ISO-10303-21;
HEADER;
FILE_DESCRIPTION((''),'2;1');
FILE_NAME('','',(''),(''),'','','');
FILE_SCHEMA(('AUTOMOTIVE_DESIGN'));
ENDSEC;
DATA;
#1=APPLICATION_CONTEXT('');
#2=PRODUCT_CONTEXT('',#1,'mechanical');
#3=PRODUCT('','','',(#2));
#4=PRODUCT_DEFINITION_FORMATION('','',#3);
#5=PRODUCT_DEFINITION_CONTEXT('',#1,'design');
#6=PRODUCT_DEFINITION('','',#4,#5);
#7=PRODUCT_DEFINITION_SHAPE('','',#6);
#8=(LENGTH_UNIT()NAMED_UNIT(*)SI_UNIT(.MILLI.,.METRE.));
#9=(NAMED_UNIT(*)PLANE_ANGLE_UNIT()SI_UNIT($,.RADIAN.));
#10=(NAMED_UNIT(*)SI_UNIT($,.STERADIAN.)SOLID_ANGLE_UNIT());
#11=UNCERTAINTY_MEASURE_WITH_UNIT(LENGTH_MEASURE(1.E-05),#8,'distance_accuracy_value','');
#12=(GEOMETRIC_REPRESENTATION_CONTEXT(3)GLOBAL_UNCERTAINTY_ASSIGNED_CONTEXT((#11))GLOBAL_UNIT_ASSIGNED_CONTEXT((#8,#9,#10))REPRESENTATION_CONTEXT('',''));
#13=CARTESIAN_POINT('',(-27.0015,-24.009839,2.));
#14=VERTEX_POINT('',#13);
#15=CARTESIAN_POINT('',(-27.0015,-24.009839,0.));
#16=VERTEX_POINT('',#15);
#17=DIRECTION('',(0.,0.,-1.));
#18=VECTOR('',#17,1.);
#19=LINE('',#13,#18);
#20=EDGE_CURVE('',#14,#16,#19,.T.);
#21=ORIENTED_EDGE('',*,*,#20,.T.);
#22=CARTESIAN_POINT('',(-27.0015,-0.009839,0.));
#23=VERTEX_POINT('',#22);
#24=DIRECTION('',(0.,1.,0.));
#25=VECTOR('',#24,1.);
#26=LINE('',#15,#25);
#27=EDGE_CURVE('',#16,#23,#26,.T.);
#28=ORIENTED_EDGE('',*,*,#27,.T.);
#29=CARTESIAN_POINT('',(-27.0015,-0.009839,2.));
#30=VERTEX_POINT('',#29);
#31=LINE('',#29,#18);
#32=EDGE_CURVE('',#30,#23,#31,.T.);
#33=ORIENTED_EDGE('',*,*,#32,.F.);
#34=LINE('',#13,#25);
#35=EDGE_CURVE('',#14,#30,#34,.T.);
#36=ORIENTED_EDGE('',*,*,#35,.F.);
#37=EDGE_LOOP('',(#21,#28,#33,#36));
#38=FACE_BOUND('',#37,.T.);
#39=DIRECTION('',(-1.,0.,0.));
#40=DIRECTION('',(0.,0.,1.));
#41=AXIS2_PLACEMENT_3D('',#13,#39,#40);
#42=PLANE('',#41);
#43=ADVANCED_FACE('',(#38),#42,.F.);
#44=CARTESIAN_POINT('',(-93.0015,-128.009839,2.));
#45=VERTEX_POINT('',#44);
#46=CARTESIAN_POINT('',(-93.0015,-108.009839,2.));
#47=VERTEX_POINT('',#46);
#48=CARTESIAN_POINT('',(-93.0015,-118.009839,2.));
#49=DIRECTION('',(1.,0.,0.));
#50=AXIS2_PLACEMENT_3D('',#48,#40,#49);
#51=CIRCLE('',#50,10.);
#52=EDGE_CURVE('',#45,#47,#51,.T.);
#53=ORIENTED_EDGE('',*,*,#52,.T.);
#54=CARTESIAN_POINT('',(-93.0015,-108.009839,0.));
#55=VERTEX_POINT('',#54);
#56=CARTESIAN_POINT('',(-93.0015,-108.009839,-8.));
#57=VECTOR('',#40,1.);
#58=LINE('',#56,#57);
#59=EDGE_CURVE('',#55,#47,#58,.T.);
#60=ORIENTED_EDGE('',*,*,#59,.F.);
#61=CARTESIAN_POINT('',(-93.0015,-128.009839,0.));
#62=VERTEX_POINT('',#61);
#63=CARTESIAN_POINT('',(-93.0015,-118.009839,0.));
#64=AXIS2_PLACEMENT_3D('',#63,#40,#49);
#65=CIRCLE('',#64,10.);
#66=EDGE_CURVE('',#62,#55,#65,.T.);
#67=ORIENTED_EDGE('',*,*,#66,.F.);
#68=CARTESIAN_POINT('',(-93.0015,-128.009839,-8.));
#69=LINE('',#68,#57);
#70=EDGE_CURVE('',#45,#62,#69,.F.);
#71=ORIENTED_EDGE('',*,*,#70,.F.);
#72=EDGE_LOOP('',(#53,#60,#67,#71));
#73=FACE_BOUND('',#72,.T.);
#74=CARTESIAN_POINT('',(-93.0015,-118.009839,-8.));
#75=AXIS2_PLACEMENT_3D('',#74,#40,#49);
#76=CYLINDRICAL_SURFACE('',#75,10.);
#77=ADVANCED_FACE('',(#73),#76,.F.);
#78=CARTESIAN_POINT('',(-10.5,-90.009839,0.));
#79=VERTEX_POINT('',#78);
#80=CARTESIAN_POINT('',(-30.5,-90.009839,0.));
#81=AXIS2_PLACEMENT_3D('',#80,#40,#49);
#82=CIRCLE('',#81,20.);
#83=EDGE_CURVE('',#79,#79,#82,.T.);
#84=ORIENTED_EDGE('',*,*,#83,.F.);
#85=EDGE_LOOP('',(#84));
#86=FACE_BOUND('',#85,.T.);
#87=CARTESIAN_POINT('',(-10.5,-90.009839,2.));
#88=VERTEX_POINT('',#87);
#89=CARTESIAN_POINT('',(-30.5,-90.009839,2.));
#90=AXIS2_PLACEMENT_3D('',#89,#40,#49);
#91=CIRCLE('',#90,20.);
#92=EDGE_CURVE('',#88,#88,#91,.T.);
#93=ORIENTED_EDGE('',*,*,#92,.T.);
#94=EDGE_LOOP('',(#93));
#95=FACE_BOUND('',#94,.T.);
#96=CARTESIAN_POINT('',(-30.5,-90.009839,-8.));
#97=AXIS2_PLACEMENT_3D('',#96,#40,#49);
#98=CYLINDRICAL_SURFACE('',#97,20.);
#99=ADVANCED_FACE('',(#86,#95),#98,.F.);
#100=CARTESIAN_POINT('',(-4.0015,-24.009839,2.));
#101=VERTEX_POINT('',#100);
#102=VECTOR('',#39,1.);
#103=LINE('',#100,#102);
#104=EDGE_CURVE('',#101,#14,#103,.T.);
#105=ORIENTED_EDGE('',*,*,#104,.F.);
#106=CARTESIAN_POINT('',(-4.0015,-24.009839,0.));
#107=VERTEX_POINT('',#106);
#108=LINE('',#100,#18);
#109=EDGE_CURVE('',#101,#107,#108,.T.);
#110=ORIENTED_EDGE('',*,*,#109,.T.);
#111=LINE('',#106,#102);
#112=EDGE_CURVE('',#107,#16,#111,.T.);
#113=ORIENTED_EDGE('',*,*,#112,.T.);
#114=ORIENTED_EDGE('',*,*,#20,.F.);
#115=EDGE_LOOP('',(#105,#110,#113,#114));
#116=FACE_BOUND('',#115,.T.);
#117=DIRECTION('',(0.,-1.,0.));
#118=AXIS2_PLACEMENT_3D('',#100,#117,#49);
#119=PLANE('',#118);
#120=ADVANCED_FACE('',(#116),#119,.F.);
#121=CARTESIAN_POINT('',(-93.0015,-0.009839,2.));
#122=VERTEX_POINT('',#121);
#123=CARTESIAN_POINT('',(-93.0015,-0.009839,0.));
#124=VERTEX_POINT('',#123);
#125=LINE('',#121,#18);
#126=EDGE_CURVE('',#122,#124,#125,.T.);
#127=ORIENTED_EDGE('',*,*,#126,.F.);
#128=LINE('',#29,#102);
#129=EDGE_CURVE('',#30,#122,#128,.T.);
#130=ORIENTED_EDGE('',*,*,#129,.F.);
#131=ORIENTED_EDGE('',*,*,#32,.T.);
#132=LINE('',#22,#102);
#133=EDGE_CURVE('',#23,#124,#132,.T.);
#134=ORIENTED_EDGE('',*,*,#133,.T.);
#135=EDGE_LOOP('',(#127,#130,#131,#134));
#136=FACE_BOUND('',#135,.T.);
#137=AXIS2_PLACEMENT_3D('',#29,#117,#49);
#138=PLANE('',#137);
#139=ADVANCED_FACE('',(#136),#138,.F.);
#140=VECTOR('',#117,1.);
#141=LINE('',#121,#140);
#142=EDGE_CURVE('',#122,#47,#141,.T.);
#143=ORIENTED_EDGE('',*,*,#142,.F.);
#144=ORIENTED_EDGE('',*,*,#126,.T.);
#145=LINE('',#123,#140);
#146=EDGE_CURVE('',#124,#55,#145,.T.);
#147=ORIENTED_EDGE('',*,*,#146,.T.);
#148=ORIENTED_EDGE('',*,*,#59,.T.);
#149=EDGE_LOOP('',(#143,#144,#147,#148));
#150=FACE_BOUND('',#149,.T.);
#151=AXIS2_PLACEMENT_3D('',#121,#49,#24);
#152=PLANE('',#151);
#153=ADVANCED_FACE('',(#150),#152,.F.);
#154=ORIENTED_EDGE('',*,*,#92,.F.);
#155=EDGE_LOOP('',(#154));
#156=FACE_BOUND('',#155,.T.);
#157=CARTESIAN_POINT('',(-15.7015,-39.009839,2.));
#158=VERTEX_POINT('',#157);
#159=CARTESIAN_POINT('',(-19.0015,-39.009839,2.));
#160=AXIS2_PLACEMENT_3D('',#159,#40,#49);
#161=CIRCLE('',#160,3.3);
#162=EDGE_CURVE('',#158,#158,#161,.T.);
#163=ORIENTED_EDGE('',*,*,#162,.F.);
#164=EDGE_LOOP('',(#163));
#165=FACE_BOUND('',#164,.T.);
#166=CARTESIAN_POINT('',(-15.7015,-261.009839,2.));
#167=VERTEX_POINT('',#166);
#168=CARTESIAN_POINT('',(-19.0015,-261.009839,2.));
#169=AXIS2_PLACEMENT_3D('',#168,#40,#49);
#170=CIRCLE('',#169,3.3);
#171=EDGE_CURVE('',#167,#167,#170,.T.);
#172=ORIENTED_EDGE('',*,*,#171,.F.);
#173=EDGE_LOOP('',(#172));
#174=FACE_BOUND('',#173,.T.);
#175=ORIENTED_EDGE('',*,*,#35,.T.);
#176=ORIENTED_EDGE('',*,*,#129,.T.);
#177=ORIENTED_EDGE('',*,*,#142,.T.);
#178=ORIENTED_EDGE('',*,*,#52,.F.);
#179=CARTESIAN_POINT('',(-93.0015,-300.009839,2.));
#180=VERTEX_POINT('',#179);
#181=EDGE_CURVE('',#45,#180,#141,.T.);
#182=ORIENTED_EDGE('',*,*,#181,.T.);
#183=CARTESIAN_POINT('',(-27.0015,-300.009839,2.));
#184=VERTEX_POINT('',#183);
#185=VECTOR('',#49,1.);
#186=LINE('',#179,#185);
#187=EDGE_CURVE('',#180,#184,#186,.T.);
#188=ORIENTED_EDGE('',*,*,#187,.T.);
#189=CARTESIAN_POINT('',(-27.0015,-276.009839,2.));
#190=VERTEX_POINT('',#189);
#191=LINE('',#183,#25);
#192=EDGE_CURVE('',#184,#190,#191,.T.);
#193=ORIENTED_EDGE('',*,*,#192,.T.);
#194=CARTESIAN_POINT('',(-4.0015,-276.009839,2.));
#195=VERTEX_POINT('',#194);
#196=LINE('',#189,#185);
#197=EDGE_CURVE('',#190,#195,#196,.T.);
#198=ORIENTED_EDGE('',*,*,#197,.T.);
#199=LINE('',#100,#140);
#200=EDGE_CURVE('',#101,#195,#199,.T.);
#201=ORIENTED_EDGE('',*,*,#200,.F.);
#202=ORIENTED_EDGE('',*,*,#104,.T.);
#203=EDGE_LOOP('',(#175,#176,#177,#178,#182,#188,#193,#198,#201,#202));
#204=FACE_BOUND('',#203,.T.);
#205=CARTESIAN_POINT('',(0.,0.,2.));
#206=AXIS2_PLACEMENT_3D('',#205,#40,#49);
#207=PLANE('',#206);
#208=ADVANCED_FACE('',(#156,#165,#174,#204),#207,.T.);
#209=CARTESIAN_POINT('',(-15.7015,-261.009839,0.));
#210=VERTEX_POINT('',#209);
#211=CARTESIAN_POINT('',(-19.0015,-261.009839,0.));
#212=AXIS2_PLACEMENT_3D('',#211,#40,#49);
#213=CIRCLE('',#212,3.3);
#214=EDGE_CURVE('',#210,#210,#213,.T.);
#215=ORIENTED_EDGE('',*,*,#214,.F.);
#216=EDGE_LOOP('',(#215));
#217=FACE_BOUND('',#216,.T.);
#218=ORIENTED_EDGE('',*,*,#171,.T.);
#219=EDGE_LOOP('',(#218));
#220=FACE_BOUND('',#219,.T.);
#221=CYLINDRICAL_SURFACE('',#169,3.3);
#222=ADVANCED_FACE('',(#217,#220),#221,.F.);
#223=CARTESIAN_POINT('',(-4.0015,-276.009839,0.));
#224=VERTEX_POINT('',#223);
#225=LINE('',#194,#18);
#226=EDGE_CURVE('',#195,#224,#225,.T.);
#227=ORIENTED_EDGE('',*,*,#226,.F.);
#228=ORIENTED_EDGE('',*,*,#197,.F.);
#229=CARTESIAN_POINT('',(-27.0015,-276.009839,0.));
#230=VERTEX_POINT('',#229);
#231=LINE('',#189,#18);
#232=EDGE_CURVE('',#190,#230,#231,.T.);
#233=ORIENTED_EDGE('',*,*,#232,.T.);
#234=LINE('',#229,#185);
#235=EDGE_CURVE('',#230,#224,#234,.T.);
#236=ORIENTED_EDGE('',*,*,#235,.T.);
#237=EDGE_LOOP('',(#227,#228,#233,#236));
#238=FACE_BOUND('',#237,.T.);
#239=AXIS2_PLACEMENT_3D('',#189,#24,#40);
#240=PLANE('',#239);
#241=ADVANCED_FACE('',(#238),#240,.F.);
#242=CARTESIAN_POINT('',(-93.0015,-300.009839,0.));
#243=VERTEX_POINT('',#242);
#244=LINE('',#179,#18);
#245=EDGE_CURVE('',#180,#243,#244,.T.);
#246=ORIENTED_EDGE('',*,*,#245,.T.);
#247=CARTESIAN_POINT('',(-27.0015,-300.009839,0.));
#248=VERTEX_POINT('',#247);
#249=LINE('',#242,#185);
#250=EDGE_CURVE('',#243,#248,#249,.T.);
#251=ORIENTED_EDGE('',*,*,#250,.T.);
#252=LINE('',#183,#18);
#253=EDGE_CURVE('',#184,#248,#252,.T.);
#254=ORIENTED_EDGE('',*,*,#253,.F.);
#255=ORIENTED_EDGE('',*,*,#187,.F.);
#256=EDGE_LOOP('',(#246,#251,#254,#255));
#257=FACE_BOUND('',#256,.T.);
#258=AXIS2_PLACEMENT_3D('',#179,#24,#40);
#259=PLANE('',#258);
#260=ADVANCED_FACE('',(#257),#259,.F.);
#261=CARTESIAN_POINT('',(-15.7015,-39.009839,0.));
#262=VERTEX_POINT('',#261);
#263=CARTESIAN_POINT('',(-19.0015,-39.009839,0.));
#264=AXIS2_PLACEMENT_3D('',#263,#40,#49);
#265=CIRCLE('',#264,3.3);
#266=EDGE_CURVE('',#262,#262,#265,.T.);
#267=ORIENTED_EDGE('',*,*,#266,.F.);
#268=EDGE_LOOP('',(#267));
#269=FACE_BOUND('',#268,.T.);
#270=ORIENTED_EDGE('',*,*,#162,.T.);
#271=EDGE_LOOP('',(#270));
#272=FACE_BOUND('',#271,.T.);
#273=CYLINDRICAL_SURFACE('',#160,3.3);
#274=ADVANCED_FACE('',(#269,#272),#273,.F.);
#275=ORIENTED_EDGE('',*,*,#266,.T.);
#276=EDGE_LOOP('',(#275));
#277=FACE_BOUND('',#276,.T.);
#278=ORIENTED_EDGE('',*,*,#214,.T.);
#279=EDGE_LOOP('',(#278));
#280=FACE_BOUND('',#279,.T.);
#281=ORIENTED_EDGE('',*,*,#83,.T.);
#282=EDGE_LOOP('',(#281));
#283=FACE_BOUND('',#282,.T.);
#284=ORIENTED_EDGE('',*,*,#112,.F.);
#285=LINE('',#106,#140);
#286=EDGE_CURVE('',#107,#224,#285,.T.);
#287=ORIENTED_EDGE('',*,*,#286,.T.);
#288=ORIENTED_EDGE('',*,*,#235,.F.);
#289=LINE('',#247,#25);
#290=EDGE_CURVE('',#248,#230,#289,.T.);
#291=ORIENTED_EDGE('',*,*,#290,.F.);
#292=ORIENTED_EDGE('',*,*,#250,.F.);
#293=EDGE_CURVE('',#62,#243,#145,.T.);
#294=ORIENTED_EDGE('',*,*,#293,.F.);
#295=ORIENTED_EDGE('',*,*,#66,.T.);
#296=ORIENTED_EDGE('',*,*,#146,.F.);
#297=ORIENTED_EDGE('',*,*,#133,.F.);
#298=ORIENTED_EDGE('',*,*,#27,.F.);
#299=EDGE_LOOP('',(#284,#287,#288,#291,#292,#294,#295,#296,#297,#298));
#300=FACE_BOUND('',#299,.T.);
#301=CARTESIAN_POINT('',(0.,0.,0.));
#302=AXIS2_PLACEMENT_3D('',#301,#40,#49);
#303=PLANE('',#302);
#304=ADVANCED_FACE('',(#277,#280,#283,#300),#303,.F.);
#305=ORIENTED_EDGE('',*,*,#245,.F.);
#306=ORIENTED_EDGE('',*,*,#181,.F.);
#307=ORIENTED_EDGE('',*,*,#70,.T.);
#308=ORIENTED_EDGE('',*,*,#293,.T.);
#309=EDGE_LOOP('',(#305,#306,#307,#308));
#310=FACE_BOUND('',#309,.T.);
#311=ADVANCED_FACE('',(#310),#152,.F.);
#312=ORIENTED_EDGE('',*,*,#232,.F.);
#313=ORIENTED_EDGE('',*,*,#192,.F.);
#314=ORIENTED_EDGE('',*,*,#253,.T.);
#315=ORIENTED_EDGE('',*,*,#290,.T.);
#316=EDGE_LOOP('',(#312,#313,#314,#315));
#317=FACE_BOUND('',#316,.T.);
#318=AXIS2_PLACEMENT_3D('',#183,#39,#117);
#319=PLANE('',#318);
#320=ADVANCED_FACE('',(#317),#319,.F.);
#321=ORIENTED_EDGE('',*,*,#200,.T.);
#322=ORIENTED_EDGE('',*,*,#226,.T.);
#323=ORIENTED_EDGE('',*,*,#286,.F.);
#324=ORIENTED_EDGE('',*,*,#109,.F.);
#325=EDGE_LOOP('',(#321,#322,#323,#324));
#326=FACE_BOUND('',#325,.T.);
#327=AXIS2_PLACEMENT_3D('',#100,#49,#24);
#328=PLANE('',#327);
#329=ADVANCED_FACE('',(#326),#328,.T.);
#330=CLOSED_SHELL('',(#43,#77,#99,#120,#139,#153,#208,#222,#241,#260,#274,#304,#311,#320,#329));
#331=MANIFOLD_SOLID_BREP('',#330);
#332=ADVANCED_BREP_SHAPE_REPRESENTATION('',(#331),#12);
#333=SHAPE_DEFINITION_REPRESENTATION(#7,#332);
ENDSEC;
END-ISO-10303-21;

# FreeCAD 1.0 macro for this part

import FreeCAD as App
import Part
import Sketcher
from FreeCAD import Vector

doc = App.newDocument("Part")
params = doc.addObject("Spreadsheet::Sheet", "Params")
for row, (alias, value) in enumerate([
    ("sketch1_width", "23 mm"),
    ("sketch1_width2", "66 mm"),
    ("sketch1_height", "24 mm"),
    ("sketch1_height2", "300 mm"),
    ("pad1_length", "2 mm"),
    ("sketch2_diameter", "40 mm"),
    ("sketch2_diameter2", "20 mm"),
    ("pocket1_length", "10 mm"),
    ("sketch3_diameter", "6.6 mm"),
    ("hole_diameter", "6.6 mm"),
], start=1):
    params.set(f"A{row}", alias)
    params.set(f"B{row}", "=" + value)
    params.setAlias(f"B{row}", alias)

body = doc.addObject("PartDesign::Body", "Body")

# Sketch on XY plane
sketch1 = body.newObject("Sketcher::SketchObject", "Sketch")
sketch1.AttachmentSupport = (doc.getObject("XY_Plane"), [""])
sketch1.MapMode = "FlatFace"
sketch1.addGeometry(Part.LineSegment(Vector(-4, -24, 0), Vector(-27, -24, 0)), False)
sketch1.addGeometry(Part.LineSegment(Vector(-27, -24, 0), Vector(-27, 0, 0)), False)
sketch1.addGeometry(Part.LineSegment(Vector(-27, 0, 0), Vector(-93, 0, 0)), False)
sketch1.addGeometry(Part.LineSegment(Vector(-93, 0, 0), Vector(-93, -300, 0)), False)
sketch1.addGeometry(Part.LineSegment(Vector(-93, -300, 0), Vector(-27, -300, 0)), False)
sketch1.addGeometry(Part.LineSegment(Vector(-27, -300, 0), Vector(-27, -276, 0)), False)
sketch1.addGeometry(Part.LineSegment(Vector(-27, -276, 0), Vector(-4, -276, 0)), False)
sketch1.addGeometry(Part.LineSegment(Vector(-4, -276, 0), Vector(-4, -24, 0)), False)
sketch1.addConstraint(Sketcher.Constraint("Coincident", 0, 2, 1, 1))
sketch1.addConstraint(Sketcher.Constraint("Coincident", 1, 2, 2, 1))
sketch1.addConstraint(Sketcher.Constraint("Coincident", 2, 2, 3, 1))
sketch1.addConstraint(Sketcher.Constraint("Coincident", 3, 2, 4, 1))
sketch1.addConstraint(Sketcher.Constraint("Coincident", 4, 2, 5, 1))
sketch1.addConstraint(Sketcher.Constraint("Coincident", 5, 2, 6, 1))
sketch1.addConstraint(Sketcher.Constraint("Coincident", 6, 2, 7, 1))
sketch1.addConstraint(Sketcher.Constraint("Coincident", 7, 2, 0, 1))
sketch1.addConstraint(Sketcher.Constraint("Horizontal", 0))
sketch1.addConstraint(Sketcher.Constraint("Vertical", 1))
sketch1.addConstraint(Sketcher.Constraint("Horizontal", 2))
sketch1.addConstraint(Sketcher.Constraint("Vertical", 3))
sketch1.addConstraint(Sketcher.Constraint("Horizontal", 4))
sketch1.addConstraint(Sketcher.Constraint("Vertical", 5))
sketch1.addConstraint(Sketcher.Constraint("Horizontal", 6))
sketch1.addConstraint(Sketcher.Constraint("Vertical", 7))
sketch1.addConstraint(Sketcher.Constraint("Vertical", 1, 2, 4, 2))
sketch1.addConstraint(Sketcher.Constraint("Equal", 1, 5))
sketch1.addConstraint(Sketcher.Constraint("DistanceX", 0, 2, 0, 1, 23.0))
sketch1.addConstraint(Sketcher.Constraint("DistanceX", 2, 2, 2, 1, 66.0))
sketch1.addConstraint(Sketcher.Constraint("DistanceY", 1, 1, 1, 2, 24.0))
sketch1.addConstraint(Sketcher.Constraint("DistanceY", 3, 2, 3, 1, 300.0))
sketch1.addConstraint(Sketcher.Constraint("DistanceX", 0, 2, -1, 1, 27.0015))
sketch1.addConstraint(Sketcher.Constraint("DistanceY", 0, 2, -1, 1, 24.009839))
sketch1.setExpression("Constraints[18]", "Params.sketch1_width")
sketch1.setExpression("Constraints[19]", "Params.sketch1_width2")
sketch1.setExpression("Constraints[20]", "Params.sketch1_height")
sketch1.setExpression("Constraints[21]", "Params.sketch1_height2")
pad1 = body.newObject("PartDesign::Pad", "Pad")
pad1.Profile = sketch1
pad1.setExpression("Length", "Params.pad1_length")

# Sketch on XY plane
sketch2 = body.newObject("Sketcher::SketchObject", "Sketch001")
sketch2.AttachmentSupport = (doc.getObject("XY_Plane"), [""])
sketch2.MapMode = "FlatFace"
sketch2.AttachmentOffset = App.Placement(Vector(0, 0, 2), App.Rotation())
sketch2.addGeometry(Part.Circle(Vector(-30, -90, 0), Vector(0, 0, 1), 20), False)
sketch2.addGeometry(Part.Circle(Vector(-93, -118, 0), Vector(0, 0, 1), 10), False)
sketch2.addConstraint(Sketcher.Constraint("Diameter", 0, 40.0))
sketch2.addConstraint(Sketcher.Constraint("Diameter", 1, 20.0))
sketch2.addConstraint(Sketcher.Constraint("DistanceY", 1, 3, 0, 3, 28.0))
sketch2.addConstraint(Sketcher.Constraint("DistanceX", 0, 3, -1, 1, 30.5))
sketch2.addConstraint(Sketcher.Constraint("DistanceX", 1, 3, -1, 1, 93.0015))
sketch2.addConstraint(Sketcher.Constraint("DistanceY", 0, 3, -1, 1, 90.009839))
sketch2.setExpression("Constraints[0]", "Params.sketch2_diameter")
sketch2.setExpression("Constraints[1]", "Params.sketch2_diameter2")
pocket1 = body.newObject("PartDesign::Pocket", "Pocket")
pocket1.Profile = sketch2
pocket1.setExpression("Length", "Params.pocket1_length")

# Sketch on XY plane
sketch3 = body.newObject("Sketcher::SketchObject", "Sketch002")
sketch3.AttachmentSupport = (doc.getObject("XY_Plane"), [""])
sketch3.MapMode = "FlatFace"
sketch3.AttachmentOffset = App.Placement(Vector(0, 0, 2), App.Rotation())
sketch3.addGeometry(Part.Circle(Vector(-19, -39, 0), Vector(0, 0, 1), 3.3), False)
sketch3.addGeometry(Part.Circle(Vector(-19, -261, 0), Vector(0, 0, 1), 3.3), False)
sketch3.addConstraint(Sketcher.Constraint("Equal", 0, 1))
sketch3.addConstraint(Sketcher.Constraint("Vertical", 0, 3, 1, 3))
sketch3.addConstraint(Sketcher.Constraint("Diameter", 0, 6.6))
sketch3.addConstraint(Sketcher.Constraint("DistanceY", 1, 3, 0, 3, 222.0))
sketch3.addConstraint(Sketcher.Constraint("DistanceX", 0, 3, -1, 1, 19.0015))
sketch3.addConstraint(Sketcher.Constraint("DistanceY", 0, 3, -1, 1, 39.009839))
sketch3.setExpression("Constraints[2]", "Params.sketch3_diameter")
doc.recompute()
hole = body.newObject("PartDesign::Hole", "Hole")
hole.Profile = sketch3
hole.ThreadType = "None"
hole.setExpression("Diameter", "Params.hole_diameter")
hole.DepthType = "ThroughAll"

doc.recompute()
